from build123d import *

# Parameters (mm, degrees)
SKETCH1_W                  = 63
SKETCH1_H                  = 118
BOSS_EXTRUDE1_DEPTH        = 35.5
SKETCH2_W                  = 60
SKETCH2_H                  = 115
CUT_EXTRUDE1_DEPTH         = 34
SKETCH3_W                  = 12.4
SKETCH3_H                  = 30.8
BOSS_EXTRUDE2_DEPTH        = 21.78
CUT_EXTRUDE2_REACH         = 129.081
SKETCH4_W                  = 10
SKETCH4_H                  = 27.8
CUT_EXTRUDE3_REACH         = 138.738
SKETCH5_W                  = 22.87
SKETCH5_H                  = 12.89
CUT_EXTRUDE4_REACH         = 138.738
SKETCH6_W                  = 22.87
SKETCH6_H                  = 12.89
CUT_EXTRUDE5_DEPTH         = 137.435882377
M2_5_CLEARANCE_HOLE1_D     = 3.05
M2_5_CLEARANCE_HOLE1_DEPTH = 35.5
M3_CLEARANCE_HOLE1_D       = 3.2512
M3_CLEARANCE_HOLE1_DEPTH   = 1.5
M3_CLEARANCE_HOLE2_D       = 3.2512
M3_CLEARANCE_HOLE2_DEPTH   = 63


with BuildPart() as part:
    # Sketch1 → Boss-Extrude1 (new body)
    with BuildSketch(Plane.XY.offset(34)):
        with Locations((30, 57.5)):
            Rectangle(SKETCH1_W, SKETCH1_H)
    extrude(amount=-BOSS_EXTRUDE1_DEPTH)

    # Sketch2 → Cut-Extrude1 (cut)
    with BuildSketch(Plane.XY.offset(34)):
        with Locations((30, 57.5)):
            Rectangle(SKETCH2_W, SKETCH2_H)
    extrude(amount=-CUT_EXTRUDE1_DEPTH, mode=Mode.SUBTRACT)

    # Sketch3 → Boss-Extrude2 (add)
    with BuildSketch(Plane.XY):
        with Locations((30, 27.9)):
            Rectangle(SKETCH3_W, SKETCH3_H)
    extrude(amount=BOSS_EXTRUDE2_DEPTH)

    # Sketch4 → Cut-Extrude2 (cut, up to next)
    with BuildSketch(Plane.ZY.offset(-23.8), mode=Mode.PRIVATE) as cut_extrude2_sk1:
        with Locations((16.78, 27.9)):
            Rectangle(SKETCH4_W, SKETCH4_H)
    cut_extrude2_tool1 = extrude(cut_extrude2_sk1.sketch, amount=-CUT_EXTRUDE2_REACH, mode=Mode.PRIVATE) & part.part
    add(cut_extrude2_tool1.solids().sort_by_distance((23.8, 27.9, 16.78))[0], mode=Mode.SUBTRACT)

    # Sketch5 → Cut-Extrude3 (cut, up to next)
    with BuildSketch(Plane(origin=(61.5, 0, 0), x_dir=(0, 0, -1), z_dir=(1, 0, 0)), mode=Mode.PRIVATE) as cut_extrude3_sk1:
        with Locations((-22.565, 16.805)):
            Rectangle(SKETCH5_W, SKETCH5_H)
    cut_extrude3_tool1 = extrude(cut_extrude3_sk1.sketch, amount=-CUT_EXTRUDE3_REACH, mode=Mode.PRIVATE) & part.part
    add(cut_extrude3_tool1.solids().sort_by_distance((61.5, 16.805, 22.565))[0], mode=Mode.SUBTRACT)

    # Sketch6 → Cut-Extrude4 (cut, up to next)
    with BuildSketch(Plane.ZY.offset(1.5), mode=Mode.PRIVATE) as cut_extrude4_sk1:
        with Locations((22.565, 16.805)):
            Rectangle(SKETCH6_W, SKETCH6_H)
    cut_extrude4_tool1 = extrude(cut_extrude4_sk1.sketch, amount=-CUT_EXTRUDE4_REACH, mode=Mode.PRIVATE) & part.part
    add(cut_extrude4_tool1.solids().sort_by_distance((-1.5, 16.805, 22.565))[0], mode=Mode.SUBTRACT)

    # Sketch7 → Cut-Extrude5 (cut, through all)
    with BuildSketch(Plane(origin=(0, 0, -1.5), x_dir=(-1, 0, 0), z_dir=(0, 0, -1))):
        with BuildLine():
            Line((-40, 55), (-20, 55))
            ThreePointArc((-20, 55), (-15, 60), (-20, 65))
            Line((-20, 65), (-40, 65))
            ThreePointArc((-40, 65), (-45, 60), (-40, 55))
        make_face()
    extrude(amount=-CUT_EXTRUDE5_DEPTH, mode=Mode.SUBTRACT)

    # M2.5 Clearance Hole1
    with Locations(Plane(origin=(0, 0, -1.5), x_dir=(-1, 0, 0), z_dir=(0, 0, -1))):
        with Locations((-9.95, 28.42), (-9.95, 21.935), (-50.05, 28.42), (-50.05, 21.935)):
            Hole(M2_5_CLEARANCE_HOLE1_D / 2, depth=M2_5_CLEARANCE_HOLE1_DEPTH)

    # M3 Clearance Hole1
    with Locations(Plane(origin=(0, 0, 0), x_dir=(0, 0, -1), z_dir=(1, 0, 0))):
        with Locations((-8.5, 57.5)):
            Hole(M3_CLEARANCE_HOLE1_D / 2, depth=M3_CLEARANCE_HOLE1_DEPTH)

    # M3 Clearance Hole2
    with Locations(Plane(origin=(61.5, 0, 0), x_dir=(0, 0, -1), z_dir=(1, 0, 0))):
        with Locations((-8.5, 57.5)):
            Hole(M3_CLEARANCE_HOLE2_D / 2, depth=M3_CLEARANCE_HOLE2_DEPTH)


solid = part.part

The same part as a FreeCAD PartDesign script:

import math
import FreeCAD as App
import Part
import Sketcher


def add_polygon(sketch, points):
    """Adds a closed chain of lines whose ends are joined by coincident constraints."""
    first, n = sketch.GeometryCount, len(points)
    for a, b in zip(points, points[1:] + points[:1]):
        sketch.addGeometry(Part.LineSegment(App.Vector(*a, 0), App.Vector(*b, 0)), False)
    for i in range(n):
        sketch.addConstraint(Sketcher.Constraint("Coincident", first + i, 2, first + (i + 1) % n, 1))

doc = App.newDocument("Part")
body = doc.addObject("PartDesign::Body", "Body")

sketch1 = body.newObject("Sketcher::SketchObject", "Sketch")
sketch1.AttachmentSupport = (doc.getObject("XY_Plane"), [""])
sketch1.MapMode = "FlatFace"
sketch1.AttachmentOffset = App.Placement(App.Vector(0, 0, 34), App.Rotation())
add_polygon(sketch1, [(-2, 116), (-2, -2), (62, -2), (62, 116)])
sketch1.addConstraint([
    Sketcher.Constraint("Vertical", 0),
    Sketcher.Constraint("Horizontal", 1),
    Sketcher.Constraint("Vertical", 2),
    Sketcher.Constraint("Horizontal", 3),
    Sketcher.Constraint("DistanceX", 1, 1, 1, 2, 63.0),
    Sketcher.Constraint("DistanceY", 0, 2, 0, 1, 118.0),
    Sketcher.Constraint("DistanceX", 0, 2, -1, 1, 1.5),
    Sketcher.Constraint("DistanceY", 0, 2, -1, 1, 1.5),
])
pad1 = body.newObject("PartDesign::Pad", "Pad")
pad1.Profile = sketch1
pad1.Length = 35.5
pad1.Reversed = True

sketch2 = body.newObject("Sketcher::SketchObject", "Sketch001")
sketch2.AttachmentSupport = (doc.getObject("XY_Plane"), [""])
sketch2.MapMode = "FlatFace"
sketch2.AttachmentOffset = App.Placement(App.Vector(0, 0, 34), App.Rotation())
add_polygon(sketch2, [(0, 115), (0, 0), (60, 0), (60, 115)])
sketch2.addConstraint([
    Sketcher.Constraint("Vertical", 0),
    Sketcher.Constraint("Horizontal", 1),
    Sketcher.Constraint("Vertical", 2),
    Sketcher.Constraint("Horizontal", 3),
    Sketcher.Constraint("Coincident", 0, 2, -1, 1),
    Sketcher.Constraint("DistanceX", 1, 1, 1, 2, 60.0),
    Sketcher.Constraint("DistanceY", 0, 2, 0, 1, 115.0),
])
pocket1 = body.newObject("PartDesign::Pocket", "Pocket")
pocket1.Profile = sketch2
pocket1.Length = 34

sketch3 = body.newObject("Sketcher::SketchObject", "Sketch002")
sketch3.AttachmentSupport = (doc.getObject("XY_Plane"), [""])
sketch3.MapMode = "FlatFace"
add_polygon(sketch3, [(24, 43), (24, 12), (36, 12), (36, 43)])
sketch3.addConstraint([
    Sketcher.Constraint("Vertical", 0),
    Sketcher.Constraint("Horizontal", 1),
    Sketcher.Constraint("Vertical", 2),
    Sketcher.Constraint("Horizontal", 3),
    Sketcher.Constraint("DistanceX", 1, 1, 1, 2, 12.4),
    Sketcher.Constraint("DistanceY", 0, 2, 0, 1, 30.8),
    Sketcher.Constraint("DistanceX", -1, 1, 0, 2, 23.8),
    Sketcher.Constraint("DistanceY", -1, 1, 0, 2, 12.5),
])
pad2 = body.newObject("PartDesign::Pad", "Pad001")
pad2.Profile = sketch3
pad2.Length = 21.78

sketch4 = body.newObject("Sketcher::SketchObject", "Sketch003")
sketch4.AttachmentSupport = (doc.getObject("YZ_Plane"), [""])
sketch4.MapMode = "FlatFace"
sketch4.AttachmentOffset = App.Placement(App.Vector(0, 0, 23.8), App.Rotation())
add_polygon(sketch4, [(42, 12), (14, 12), (14, 22), (42, 22)])
sketch4.addConstraint([
    Sketcher.Constraint("Horizontal", 0),
    Sketcher.Constraint("Vertical", 1),
    Sketcher.Constraint("Horizontal", 2),
    Sketcher.Constraint("Vertical", 3),
    Sketcher.Constraint("DistanceY", 1, 1, 1, 2, 10.0),
    Sketcher.Constraint("DistanceX", 0, 2, 0, 1, 27.8),
    Sketcher.Constraint("DistanceX", -1, 1, 0, 2, 14.0),
    Sketcher.Constraint("DistanceY", -1, 1, 0, 2, 11.78),
])
pocket2 = body.newObject("PartDesign::Pocket", "Pocket001")
pocket2.Profile = sketch4
pocket2.Type = "UpToFirst"
pocket2.Reversed = True

sketch5 = body.newObject("Sketcher::SketchObject", "Sketch004")
sketch5.AttachmentSupport = (doc.getObject("YZ_Plane"), [""])
sketch5.MapMode = "FlatFace"
sketch5.AttachmentOffset = App.Placement(App.Vector(0, 0, 61.5), App.Rotation())
add_polygon(sketch5, [(23, 34), (10, 34), (10, 11), (23, 11)])
sketch5.addConstraint([
    Sketcher.Constraint("Horizontal", 0),
    Sketcher.Constraint("Vertical", 1),
    Sketcher.Constraint("Horizontal", 2),
    Sketcher.Constraint("Vertical", 3),
    Sketcher.Constraint("DistanceY", -1, 1, 0, 2, 34.0),
    Sketcher.Constraint("DistanceX", 0, 2, 0, 1, 12.89),
    Sketcher.Constraint("DistanceY", 1, 2, 1, 1, 22.87),
    Sketcher.Constraint("DistanceX", -1, 1, 0, 2, 10.36),
])
pocket3 = body.newObject("PartDesign::Pocket", "Pocket002")
pocket3.Profile = sketch5
pocket3.Type = "UpToFirst"

sketch6 = body.newObject("Sketcher::SketchObject", "Sketch005")
sketch6.AttachmentSupport = (doc.getObject("YZ_Plane"), [""])
sketch6.MapMode = "FlatFace"
sketch6.AttachmentOffset = App.Placement(App.Vector(0, 0, -1.5), App.Rotation())
add_polygon(sketch6, [(23, 11), (10, 11), (10, 34), (23, 34)])
sketch6.addConstraint([
    Sketcher.Constraint("Horizontal", 0),
    Sketcher.Constraint("Vertical", 1),
    Sketcher.Constraint("Horizontal", 2),
    Sketcher.Constraint("Vertical", 3),
    Sketcher.Constraint("DistanceY", -1, 1, 1, 2, 34.0),
    Sketcher.Constraint("DistanceX", 0, 2, 0, 1, 12.89),
    Sketcher.Constraint("DistanceY", 1, 1, 1, 2, 22.87),
    Sketcher.Constraint("DistanceX", -1, 1, 0, 2, 10.36),
])
pocket4 = body.newObject("PartDesign::Pocket", "Pocket003")
pocket4.Profile = sketch6
pocket4.Type = "UpToFirst"
pocket4.Reversed = True

sketch7 = body.newObject("Sketcher::SketchObject", "Sketch006")
sketch7.AttachmentSupport = (doc.getObject("XY_Plane"), [""])
sketch7.MapMode = "FlatFace"
sketch7.AttachmentOffset = App.Placement(App.Vector(0, 0, -1.5), App.Rotation())
sketch7.addGeometry([
    Part.LineSegment(App.Vector(40, 55, 0), App.Vector(20, 55, 0)),
    Part.ArcOfCircle(Part.Circle(App.Vector(20, 60, 0), App.Vector(0, 0, 1), 5), math.radians(90), math.radians(270)),
    Part.LineSegment(App.Vector(20, 65, 0), App.Vector(40, 65, 0)),
    Part.ArcOfCircle(Part.Circle(App.Vector(40, 60, 0), App.Vector(0, 0, 1), 5), math.radians(-90), math.radians(90)),
], False)
sketch7.addConstraint([
    Sketcher.Constraint("Tangent", 0, 2, 1, 2),
    Sketcher.Constraint("Tangent", 1, 1, 2, 1),
    Sketcher.Constraint("Tangent", 2, 2, 3, 2),
    Sketcher.Constraint("Tangent", 3, 1, 0, 1),
    Sketcher.Constraint("Horizontal", 0),
    Sketcher.Constraint("Horizontal", 2),
    Sketcher.Constraint("Radius", 1, 5.0),
    Sketcher.Constraint("DistanceX", 0, 2, 0, 1, 20.0),
    Sketcher.Constraint("DistanceX", -1, 1, 1, 3, 20.0),
    Sketcher.Constraint("DistanceY", -1, 1, 1, 3, 60.0),
])
pocket5 = body.newObject("PartDesign::Pocket", "Pocket004")
pocket5.Profile = sketch7
pocket5.Type = "ThroughAll"
pocket5.Reversed = True

sketch8 = body.newObject("Sketcher::SketchObject", "Sketch007")
sketch8.AttachmentSupport = (doc.getObject("XY_Plane"), [""])
sketch8.MapMode = "FlatFace"
sketch8.AttachmentOffset = App.Placement(App.Vector(0, 0, -1.5), App.Rotation())
sketch8.addGeometry([
    Part.Circle(App.Vector(9.9, 28.4, 0), App.Vector(0, 0, 1), 1.5),
    Part.Circle(App.Vector(9.9, 21.9, 0), App.Vector(0, 0, 1), 1.5),
    Part.Circle(App.Vector(50, 28.4, 0), App.Vector(0, 0, 1), 1.5),
    Part.Circle(App.Vector(50, 21.9, 0), App.Vector(0, 0, 1), 1.5),
], False)
sketch8.addConstraint([
    Sketcher.Constraint("Equal", 0, 1),
    Sketcher.Constraint("Equal", 1, 2),
    Sketcher.Constraint("Equal", 2, 3),
    Sketcher.Constraint("Horizontal", 0, 3, 2, 3),
    Sketcher.Constraint("Horizontal", 1, 3, 3, 3),
    Sketcher.Constraint("Vertical", 0, 3, 1, 3),
    Sketcher.Constraint("Vertical", 2, 3, 3, 3),
    Sketcher.Constraint("Diameter", 0, 3.05),
    Sketcher.Constraint("DistanceX", 0, 3, 2, 3, 40.1),
    Sketcher.Constraint("DistanceX", -1, 1, 0, 3, 9.95),
    Sketcher.Constraint("DistanceY", -1, 1, 0, 3, 28.42),
    Sketcher.Constraint("DistanceY", -1, 1, 1, 3, 21.935),
])
doc.recompute()
hole = body.newObject("PartDesign::Hole", "Hole")
hole.Profile = sketch8
hole.ThreadType = "None"
hole.Diameter = 3.05
hole.DepthType = "Dimension"
hole.Depth = 35.5
hole.DrillPoint = "Flat"
hole.Reversed = True

sketch9 = body.newObject("Sketcher::SketchObject", "Sketch008")
sketch9.AttachmentSupport = (doc.getObject("YZ_Plane"), [""])
sketch9.MapMode = "FlatFace"
sketch9.addGeometry(Part.Circle(App.Vector(57.5, 8.5, 0), App.Vector(0, 0, 1), 1.6), False)
sketch9.addConstraint([
    Sketcher.Constraint("Diameter", 0, 3.2512),
    Sketcher.Constraint("DistanceX", -1, 1, 0, 3, 57.5),
    Sketcher.Constraint("DistanceY", -1, 1, 0, 3, 8.5),
])
doc.recompute()
hole2 = body.newObject("PartDesign::Hole", "Hole001")
hole2.Profile = sketch9
hole2.ThreadType = "None"
hole2.Diameter = 3.2512
hole2.DepthType = "Dimension"
hole2.Depth = 1.5
hole2.DrillPoint = "Flat"

sketch10 = body.newObject("Sketcher::SketchObject", "Sketch009")
sketch10.AttachmentSupport = (doc.getObject("YZ_Plane"), [""])
sketch10.MapMode = "FlatFace"
sketch10.AttachmentOffset = App.Placement(App.Vector(0, 0, 61.5), App.Rotation())
sketch10.addGeometry(Part.Circle(App.Vector(57.5, 8.5, 0), App.Vector(0, 0, 1), 1.6), False)
sketch10.addConstraint([
    Sketcher.Constraint("Diameter", 0, 3.2512),
    Sketcher.Constraint("DistanceX", -1, 1, 0, 3, 57.5),
    Sketcher.Constraint("DistanceY", -1, 1, 0, 3, 8.5),
])
doc.recompute()
hole3 = body.newObject("PartDesign::Hole", "Hole002")
hole3.Profile = sketch10
hole3.ThreadType = "None"
hole3.Diameter = 3.2512
hole3.DepthType = "Dimension"
hole3.Depth = 63
hole3.DrillPoint = "Flat"

doc.recompute()
